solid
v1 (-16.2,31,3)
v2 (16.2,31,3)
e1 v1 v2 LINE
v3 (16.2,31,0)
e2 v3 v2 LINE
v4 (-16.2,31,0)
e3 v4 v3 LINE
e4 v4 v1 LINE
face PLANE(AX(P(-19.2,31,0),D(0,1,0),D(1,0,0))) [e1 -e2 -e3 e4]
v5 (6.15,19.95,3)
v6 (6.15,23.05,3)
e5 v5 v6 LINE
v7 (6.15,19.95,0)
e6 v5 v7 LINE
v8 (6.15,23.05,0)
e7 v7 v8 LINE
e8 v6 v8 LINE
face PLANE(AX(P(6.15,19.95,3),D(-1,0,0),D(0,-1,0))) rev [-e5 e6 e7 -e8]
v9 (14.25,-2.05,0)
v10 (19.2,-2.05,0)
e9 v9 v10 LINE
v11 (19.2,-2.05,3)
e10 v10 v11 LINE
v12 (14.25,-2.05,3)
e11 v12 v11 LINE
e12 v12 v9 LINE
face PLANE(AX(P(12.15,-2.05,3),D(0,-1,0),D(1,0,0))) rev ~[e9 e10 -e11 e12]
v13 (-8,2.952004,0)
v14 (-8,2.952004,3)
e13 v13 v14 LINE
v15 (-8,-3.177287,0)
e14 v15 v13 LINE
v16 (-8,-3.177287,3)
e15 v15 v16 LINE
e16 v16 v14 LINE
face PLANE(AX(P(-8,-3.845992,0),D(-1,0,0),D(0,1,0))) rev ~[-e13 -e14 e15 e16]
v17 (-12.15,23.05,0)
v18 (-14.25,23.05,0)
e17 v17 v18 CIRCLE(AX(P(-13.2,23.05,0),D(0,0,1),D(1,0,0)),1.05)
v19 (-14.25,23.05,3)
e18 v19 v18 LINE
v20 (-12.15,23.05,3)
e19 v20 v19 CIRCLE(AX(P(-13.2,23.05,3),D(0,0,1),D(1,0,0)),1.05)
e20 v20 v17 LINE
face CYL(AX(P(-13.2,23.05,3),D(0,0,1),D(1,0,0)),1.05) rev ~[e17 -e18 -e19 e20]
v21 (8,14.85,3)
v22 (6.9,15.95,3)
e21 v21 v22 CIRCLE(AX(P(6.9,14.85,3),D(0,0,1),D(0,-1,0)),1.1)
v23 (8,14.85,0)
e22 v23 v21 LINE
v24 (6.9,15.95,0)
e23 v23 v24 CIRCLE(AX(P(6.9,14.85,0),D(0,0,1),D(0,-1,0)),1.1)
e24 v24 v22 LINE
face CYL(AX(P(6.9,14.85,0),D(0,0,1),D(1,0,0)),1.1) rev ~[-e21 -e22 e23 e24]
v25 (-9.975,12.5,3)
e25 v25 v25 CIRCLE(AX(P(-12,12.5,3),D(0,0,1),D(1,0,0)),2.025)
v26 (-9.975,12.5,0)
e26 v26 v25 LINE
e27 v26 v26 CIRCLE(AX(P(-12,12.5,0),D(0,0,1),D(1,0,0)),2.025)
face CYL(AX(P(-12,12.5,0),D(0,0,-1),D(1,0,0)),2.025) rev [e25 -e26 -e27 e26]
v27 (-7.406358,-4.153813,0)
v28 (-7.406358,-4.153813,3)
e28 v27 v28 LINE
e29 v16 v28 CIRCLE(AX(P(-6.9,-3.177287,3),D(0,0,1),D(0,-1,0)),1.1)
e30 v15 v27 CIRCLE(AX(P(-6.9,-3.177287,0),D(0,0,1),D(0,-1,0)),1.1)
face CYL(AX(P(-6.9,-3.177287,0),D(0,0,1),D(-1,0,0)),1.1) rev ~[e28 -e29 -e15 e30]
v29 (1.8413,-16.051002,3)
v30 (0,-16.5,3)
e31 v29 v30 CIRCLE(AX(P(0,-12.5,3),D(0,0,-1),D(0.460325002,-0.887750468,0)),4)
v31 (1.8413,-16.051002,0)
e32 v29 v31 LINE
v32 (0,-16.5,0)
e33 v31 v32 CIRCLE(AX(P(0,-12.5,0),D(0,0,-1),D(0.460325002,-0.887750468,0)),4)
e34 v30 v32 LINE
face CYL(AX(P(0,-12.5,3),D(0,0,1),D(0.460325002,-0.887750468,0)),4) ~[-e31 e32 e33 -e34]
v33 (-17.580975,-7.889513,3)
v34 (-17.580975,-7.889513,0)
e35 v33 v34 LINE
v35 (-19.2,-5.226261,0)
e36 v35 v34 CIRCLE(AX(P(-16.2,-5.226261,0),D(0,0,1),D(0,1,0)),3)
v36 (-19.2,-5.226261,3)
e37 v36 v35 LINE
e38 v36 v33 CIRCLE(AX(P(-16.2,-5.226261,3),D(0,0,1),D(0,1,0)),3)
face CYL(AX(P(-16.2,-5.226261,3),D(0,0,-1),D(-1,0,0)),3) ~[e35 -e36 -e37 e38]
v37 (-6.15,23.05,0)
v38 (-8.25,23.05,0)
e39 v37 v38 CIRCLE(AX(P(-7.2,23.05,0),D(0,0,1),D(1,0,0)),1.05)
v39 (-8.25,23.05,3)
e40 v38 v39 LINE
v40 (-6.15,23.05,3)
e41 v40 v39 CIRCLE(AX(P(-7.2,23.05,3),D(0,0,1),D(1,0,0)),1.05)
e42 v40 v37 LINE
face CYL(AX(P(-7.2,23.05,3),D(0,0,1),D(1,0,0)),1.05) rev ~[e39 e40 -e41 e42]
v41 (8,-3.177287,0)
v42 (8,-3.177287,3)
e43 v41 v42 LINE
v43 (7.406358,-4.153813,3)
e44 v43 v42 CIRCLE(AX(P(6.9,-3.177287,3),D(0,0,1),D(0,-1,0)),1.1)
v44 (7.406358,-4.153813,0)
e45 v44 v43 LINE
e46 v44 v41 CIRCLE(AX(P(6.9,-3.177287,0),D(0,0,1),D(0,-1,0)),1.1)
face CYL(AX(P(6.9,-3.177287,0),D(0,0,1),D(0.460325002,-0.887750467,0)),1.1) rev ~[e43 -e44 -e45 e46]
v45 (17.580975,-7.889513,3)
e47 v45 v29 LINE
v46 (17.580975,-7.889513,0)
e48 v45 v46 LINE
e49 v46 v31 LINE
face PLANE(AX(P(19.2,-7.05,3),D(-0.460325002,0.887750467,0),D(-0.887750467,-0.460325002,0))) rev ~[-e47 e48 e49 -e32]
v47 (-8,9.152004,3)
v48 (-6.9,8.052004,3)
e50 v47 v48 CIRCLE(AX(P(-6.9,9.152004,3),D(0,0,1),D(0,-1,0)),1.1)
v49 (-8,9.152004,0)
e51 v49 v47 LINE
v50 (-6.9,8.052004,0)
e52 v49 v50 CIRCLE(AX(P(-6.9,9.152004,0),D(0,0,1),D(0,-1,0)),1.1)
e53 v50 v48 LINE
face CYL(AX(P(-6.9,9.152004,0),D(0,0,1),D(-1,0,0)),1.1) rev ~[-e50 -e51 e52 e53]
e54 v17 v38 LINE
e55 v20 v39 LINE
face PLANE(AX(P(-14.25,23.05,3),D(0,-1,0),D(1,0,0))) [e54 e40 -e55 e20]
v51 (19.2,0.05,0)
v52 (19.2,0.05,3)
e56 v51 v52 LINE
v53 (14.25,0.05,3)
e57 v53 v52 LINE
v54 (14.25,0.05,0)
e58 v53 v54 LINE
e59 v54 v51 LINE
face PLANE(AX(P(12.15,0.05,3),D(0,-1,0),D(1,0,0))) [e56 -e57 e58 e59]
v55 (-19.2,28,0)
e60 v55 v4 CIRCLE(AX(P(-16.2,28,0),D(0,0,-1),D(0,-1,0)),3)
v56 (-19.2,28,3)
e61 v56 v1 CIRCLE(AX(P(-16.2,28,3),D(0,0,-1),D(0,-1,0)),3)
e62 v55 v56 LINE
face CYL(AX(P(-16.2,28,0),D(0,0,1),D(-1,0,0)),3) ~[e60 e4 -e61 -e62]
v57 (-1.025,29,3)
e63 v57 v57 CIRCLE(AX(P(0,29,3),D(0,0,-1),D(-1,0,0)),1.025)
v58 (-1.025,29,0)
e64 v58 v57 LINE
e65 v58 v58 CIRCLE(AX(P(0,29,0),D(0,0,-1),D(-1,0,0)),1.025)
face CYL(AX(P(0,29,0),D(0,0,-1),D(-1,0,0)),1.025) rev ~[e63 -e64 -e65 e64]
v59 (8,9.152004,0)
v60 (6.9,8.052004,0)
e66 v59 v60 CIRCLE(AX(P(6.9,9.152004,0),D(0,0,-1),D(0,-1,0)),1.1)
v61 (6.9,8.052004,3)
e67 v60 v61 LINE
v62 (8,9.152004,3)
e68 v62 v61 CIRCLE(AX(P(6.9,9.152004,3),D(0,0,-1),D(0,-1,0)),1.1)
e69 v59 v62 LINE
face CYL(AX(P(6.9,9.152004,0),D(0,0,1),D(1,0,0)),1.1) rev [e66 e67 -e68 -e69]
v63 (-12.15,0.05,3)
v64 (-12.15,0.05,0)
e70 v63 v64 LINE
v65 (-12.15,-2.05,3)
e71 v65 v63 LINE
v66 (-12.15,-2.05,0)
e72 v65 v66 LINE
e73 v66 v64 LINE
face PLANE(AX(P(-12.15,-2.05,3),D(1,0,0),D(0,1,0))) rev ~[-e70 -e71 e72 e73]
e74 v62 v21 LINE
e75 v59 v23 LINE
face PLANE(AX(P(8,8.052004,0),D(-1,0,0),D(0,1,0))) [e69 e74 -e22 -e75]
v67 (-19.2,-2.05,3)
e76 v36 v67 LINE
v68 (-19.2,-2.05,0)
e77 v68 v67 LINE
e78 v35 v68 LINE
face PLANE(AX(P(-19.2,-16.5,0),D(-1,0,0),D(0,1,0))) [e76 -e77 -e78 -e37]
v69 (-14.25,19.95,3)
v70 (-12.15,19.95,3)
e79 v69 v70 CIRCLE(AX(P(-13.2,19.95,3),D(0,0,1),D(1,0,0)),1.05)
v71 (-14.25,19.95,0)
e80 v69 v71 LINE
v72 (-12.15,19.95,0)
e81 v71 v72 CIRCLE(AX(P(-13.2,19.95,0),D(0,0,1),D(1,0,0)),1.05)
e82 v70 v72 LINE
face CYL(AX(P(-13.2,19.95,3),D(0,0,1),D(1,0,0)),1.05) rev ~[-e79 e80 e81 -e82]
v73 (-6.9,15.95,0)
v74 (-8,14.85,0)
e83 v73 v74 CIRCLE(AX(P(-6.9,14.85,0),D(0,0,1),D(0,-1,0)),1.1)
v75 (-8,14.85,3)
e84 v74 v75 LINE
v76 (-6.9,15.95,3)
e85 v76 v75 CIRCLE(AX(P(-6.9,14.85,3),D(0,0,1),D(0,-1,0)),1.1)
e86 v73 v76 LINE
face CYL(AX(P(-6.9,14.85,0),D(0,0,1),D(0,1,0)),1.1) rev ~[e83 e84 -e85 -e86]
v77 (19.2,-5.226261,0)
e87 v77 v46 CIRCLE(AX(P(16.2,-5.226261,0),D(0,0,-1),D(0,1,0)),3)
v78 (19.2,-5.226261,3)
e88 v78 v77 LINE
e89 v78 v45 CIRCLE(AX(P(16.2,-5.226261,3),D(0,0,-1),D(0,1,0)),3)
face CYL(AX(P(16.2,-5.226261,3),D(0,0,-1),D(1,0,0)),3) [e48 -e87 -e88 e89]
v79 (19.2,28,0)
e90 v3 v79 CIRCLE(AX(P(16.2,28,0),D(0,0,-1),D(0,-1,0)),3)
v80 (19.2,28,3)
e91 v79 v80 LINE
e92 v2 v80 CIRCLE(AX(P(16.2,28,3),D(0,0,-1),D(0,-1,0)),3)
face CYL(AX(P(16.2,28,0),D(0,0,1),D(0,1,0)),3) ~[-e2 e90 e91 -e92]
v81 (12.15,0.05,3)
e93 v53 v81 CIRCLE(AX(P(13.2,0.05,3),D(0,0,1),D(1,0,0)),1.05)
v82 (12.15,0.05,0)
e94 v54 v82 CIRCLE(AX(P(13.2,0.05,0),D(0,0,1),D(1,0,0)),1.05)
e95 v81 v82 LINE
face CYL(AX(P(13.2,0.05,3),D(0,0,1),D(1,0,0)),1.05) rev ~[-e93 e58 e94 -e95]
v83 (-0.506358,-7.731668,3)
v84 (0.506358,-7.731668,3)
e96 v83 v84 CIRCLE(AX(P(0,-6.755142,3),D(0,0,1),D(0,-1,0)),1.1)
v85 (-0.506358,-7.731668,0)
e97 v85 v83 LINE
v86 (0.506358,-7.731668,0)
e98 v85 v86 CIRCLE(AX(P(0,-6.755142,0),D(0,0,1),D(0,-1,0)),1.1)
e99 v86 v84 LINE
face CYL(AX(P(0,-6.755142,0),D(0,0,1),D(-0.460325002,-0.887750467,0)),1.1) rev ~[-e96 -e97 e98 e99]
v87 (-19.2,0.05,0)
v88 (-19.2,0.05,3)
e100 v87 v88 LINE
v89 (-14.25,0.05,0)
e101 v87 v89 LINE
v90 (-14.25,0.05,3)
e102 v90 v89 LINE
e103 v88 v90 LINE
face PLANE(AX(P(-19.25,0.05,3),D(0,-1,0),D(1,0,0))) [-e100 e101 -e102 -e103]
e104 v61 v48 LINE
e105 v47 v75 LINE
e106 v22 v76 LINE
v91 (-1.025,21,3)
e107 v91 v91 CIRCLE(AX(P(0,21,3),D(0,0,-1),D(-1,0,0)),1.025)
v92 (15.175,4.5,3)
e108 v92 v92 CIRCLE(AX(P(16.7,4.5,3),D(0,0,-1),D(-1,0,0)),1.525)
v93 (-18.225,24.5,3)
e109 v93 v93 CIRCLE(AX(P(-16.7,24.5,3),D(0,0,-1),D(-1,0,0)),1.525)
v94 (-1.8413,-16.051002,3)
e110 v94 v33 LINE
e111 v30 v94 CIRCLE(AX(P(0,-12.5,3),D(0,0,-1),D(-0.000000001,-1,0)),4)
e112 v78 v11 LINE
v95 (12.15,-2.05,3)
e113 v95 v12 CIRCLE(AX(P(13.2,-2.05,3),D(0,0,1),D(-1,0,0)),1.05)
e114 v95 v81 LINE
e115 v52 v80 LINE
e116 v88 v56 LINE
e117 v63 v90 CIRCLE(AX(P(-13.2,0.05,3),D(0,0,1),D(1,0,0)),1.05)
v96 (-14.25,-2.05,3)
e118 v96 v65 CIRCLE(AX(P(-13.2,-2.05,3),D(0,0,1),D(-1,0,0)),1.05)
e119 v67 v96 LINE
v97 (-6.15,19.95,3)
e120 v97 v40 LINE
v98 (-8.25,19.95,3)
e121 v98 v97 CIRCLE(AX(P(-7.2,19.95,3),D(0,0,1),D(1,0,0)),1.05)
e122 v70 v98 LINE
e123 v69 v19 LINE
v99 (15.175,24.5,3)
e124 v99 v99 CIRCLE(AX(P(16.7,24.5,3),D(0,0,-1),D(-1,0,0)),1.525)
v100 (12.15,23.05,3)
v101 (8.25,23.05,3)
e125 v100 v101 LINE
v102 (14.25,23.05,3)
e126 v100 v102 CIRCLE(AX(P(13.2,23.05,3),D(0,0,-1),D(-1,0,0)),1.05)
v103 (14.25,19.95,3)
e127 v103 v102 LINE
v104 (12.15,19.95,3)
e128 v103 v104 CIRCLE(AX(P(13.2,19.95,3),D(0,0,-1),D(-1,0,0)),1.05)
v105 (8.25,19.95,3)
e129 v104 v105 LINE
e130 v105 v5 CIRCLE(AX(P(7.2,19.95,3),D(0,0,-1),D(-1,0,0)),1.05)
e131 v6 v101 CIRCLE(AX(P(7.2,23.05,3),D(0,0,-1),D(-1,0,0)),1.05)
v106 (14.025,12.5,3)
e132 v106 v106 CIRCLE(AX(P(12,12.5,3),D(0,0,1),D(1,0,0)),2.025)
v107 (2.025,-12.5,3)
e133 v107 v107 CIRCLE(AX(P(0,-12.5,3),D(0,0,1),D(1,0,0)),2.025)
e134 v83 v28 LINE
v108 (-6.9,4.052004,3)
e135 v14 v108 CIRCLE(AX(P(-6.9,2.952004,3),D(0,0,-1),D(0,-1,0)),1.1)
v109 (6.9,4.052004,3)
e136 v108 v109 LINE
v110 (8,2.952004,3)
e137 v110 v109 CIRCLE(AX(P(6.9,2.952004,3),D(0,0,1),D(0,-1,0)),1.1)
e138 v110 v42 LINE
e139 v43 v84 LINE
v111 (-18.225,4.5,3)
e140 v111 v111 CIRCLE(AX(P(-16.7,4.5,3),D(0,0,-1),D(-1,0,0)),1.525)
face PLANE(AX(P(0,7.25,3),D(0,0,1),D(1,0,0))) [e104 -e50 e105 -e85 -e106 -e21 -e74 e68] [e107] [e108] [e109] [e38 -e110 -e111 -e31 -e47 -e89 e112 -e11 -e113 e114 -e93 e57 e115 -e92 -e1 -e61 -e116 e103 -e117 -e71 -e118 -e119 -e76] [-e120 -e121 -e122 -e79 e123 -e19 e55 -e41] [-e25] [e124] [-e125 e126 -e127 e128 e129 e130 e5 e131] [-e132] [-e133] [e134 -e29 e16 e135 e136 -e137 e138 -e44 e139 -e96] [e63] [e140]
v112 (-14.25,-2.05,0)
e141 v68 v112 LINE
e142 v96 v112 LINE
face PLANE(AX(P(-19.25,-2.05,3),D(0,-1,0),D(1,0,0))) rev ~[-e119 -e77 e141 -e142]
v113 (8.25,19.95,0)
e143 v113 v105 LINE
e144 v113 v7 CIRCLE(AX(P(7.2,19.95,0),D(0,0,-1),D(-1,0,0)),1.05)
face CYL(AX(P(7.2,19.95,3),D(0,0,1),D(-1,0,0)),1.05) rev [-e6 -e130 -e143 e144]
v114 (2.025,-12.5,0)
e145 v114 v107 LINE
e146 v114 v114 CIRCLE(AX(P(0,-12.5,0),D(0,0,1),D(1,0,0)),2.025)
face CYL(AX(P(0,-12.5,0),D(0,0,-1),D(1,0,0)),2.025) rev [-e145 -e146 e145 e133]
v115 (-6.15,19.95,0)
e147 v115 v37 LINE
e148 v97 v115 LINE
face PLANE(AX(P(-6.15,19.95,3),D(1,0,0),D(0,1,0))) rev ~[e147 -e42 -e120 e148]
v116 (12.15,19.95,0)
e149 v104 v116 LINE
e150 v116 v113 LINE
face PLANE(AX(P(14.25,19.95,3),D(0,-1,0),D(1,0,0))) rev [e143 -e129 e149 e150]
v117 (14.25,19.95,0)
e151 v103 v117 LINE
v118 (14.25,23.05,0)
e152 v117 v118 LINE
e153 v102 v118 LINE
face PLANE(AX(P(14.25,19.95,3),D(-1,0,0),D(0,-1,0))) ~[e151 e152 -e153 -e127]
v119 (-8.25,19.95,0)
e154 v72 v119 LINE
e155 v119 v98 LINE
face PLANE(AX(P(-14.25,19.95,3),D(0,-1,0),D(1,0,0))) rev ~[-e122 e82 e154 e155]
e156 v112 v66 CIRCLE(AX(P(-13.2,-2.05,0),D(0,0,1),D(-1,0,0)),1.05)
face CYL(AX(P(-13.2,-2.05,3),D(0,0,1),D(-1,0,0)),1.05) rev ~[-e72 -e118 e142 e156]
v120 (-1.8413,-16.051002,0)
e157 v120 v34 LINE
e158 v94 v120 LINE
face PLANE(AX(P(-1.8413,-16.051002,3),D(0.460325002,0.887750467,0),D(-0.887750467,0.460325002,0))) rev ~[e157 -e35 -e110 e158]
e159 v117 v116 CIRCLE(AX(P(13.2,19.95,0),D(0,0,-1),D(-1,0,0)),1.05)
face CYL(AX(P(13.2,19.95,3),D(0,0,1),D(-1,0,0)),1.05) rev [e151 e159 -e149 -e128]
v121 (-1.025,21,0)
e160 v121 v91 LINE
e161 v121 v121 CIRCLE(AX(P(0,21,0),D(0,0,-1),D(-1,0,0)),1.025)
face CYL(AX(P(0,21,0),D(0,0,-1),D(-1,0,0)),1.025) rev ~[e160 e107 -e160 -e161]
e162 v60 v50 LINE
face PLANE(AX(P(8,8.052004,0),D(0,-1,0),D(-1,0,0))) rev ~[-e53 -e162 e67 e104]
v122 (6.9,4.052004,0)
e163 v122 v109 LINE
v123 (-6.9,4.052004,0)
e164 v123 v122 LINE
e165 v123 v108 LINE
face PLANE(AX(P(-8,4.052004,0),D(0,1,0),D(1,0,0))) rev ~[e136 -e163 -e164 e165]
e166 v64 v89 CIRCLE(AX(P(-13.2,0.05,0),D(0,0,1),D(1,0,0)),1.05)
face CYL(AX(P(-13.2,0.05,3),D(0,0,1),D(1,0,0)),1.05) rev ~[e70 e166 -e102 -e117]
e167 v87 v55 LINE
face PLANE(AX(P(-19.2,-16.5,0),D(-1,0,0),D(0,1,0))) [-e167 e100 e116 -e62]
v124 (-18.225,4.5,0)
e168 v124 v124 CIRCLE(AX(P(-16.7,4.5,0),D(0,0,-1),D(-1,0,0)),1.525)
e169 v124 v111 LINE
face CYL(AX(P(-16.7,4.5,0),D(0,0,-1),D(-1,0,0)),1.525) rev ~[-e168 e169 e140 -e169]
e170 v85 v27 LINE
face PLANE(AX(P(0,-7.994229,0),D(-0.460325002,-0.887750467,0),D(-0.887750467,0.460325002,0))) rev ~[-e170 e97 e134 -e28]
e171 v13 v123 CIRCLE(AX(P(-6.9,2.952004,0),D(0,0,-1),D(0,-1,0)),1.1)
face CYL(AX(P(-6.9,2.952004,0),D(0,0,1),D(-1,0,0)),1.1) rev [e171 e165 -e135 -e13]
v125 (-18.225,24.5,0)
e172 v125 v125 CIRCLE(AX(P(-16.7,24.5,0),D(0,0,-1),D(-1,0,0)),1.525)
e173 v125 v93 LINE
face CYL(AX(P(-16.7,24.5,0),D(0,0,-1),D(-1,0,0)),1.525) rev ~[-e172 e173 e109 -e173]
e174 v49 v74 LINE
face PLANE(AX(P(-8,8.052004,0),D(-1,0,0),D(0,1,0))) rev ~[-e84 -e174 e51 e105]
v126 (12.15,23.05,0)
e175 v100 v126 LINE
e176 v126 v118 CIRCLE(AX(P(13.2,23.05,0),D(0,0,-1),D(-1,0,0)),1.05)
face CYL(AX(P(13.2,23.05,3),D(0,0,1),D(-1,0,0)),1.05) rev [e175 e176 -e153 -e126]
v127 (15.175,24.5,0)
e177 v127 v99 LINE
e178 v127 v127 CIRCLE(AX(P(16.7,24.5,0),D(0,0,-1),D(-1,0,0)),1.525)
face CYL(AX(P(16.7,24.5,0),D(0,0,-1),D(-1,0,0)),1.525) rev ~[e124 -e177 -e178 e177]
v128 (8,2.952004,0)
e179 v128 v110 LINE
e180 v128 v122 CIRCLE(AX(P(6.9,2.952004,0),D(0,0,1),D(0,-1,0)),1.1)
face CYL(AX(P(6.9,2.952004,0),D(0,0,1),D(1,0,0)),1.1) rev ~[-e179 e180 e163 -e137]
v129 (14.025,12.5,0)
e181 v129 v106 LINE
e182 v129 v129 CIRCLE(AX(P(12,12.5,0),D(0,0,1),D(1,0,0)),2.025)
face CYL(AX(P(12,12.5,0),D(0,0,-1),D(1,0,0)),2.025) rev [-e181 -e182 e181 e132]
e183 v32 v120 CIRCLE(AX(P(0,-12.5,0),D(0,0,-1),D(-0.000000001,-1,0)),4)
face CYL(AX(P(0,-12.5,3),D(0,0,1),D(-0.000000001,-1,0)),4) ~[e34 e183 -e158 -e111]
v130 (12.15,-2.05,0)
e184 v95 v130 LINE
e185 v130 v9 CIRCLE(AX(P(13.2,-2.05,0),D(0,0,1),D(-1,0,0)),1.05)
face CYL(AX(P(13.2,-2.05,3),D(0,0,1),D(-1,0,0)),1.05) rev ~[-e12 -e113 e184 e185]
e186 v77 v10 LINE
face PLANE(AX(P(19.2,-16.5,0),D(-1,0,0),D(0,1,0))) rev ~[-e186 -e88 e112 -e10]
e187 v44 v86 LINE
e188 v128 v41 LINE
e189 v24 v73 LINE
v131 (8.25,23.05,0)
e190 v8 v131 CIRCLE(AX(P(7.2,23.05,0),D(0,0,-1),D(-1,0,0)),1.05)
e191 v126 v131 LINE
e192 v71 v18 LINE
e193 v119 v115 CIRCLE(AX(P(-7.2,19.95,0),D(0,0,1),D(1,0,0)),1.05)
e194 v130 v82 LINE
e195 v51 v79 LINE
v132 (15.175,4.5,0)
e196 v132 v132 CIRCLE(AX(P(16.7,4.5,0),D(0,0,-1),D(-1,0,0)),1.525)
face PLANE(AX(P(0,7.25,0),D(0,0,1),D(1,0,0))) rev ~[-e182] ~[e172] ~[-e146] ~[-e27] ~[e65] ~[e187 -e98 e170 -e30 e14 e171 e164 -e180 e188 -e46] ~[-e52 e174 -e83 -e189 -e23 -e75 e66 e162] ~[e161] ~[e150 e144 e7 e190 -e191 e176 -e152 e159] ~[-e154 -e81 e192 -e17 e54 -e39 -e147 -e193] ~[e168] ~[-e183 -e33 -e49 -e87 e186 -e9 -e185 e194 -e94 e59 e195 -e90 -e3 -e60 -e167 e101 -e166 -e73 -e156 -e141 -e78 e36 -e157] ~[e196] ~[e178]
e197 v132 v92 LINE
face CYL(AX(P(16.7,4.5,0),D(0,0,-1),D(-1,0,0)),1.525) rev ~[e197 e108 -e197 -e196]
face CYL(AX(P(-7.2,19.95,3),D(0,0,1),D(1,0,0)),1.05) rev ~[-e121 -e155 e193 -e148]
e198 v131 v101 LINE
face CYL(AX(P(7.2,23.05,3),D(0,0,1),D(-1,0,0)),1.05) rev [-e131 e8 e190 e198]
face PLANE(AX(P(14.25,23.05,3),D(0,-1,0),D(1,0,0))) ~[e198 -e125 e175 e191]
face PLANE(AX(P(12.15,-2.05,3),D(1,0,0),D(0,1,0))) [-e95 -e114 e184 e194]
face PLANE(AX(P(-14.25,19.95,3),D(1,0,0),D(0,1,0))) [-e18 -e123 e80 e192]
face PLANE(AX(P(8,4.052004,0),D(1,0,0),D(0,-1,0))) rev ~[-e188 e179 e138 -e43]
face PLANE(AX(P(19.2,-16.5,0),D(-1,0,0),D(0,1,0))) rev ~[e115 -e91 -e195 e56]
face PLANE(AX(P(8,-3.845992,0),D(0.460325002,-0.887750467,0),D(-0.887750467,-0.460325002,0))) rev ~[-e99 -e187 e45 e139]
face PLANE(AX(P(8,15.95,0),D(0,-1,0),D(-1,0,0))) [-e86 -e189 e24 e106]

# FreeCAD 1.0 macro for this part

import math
import FreeCAD as App
import Part
import Sketcher
from FreeCAD import Vector
Q = App.Units.Quantity


def edges_at(feature, points):
    """Names of the edges that pass closest to the given points."""
    edges = feature.Shape.Edges
    near = lambda p: min(range(len(edges)), key=lambda i: edges[i].distToShape(Part.Vertex(*p))[0])
    return sorted({f"Edge{near(p) + 1}" for p in points})

doc = App.newDocument("Part")
body = doc.addObject("PartDesign::Body", "Body")

# Sketch on XY plane
sketch1 = body.newObject("Sketcher::SketchObject", "Sketch")
sketch1.AttachmentSupport = (doc.getObject("XY_Plane"), [""])
sketch1.MapMode = "FlatFace"
sketch1.addGeometry(Part.LineSegment(Vector(-19.2, 31, 0), Vector(-19.2, -16.5, 0)), False)
sketch1.addGeometry(Part.LineSegment(Vector(-19.2, -16.5, 0), Vector(19.2, -16.5, 0)), False)
sketch1.addGeometry(Part.LineSegment(Vector(19.2, -16.5, 0), Vector(19.2, 31, 0)), False)
sketch1.addGeometry(Part.LineSegment(Vector(19.2, 31, 0), Vector(-19.2, 31, 0)), False)
sketch1.addGeometry(Part.Circle(Vector(0, -12.5, 0), Vector(0, 0, 1), 2), False)
sketch1.addGeometry(Part.Circle(Vector(-12, 12.5, 0), Vector(0, 0, 1), 2), False)
sketch1.addGeometry(Part.Circle(Vector(12, 12.5, 0), Vector(0, 0, 1), 2), False)
sketch1.addConstraint(Sketcher.Constraint("Coincident", 0, 2, 1, 1))
sketch1.addConstraint(Sketcher.Constraint("Coincident", 1, 2, 2, 1))
sketch1.addConstraint(Sketcher.Constraint("Coincident", 2, 2, 3, 1))
sketch1.addConstraint(Sketcher.Constraint("Coincident", 3, 2, 0, 1))
sketch1.addConstraint(Sketcher.Constraint("Vertical", 0))
sketch1.addConstraint(Sketcher.Constraint("Horizontal", 1))
sketch1.addConstraint(Sketcher.Constraint("Vertical", 2))
sketch1.addConstraint(Sketcher.Constraint("Horizontal", 3))
sketch1.addConstraint(Sketcher.Constraint("Equal", 4, 5))
sketch1.addConstraint(Sketcher.Constraint("Equal", 5, 6))
sketch1.addConstraint(Sketcher.Constraint("Symmetric", 5, 3, 6, 3, -2))
sketch1.addConstraint(Sketcher.Constraint("PointOnObject", 4, 3, -2))
sketch1.addConstraint(Sketcher.Constraint("Diameter", 4, Q("4.05 mm")))
sketch1.addConstraint(Sketcher.Constraint("DistanceX", 1, 1, 1, 2, Q("38.4 mm")))
sketch1.addConstraint(Sketcher.Constraint("DistanceY", 0, 2, 0, 1, Q("47.5 mm")))
sketch1.addConstraint(Sketcher.Constraint("DistanceX", 5, 3, -1, 1, Q("12 mm")))
sketch1.addConstraint(Sketcher.Constraint("DistanceY", -1, 1, 2, 2, Q("31 mm")))
sketch1.addConstraint(Sketcher.Constraint("DistanceY", 4, 3, 5, 3, Q("25 mm")))
sketch1.addConstraint(Sketcher.Constraint("DistanceY", 0, 2, 4, 3, Q("4 mm")))
sketch1.addConstraint(Sketcher.Constraint("DistanceX", 0, 2, -1, 1, Q("19.2 mm")))
pad1 = body.newObject("PartDesign::Pad", "Pad")
pad1.Profile = sketch1
pad1.Length = 3

# Sketch on XY plane
sketch2 = body.newObject("Sketcher::SketchObject", "Sketch001")
sketch2.AttachmentSupport = (doc.getObject("XY_Plane"), [""])
sketch2.MapMode = "FlatFace"
sketch2.addGeometry(Part.Circle(Vector(0, 29, 0), Vector(0, 0, 1), 1), False)
sketch2.addGeometry(Part.Circle(Vector(0, 21, 0), Vector(0, 0, 1), 1), False)
sketch2.addConstraint(Sketcher.Constraint("Equal", 0, 1))
sketch2.addConstraint(Sketcher.Constraint("PointOnObject", 0, 3, -2))
sketch2.addConstraint(Sketcher.Constraint("PointOnObject", 1, 3, -2))
sketch2.addConstraint(Sketcher.Constraint("Diameter", 0, Q("2.05 mm")))
sketch2.addConstraint(Sketcher.Constraint("DistanceY", -1, 1, 0, 3, Q("29 mm")))
sketch2.addConstraint(Sketcher.Constraint("DistanceY", -1, 1, 1, 3, Q("21 mm")))
pocket1 = body.newObject("PartDesign::Pocket", "Pocket")
pocket1.Profile = sketch2
pocket1.Length = 43
pocket1.Reversed = True

# Sketch on XY plane
sketch3 = body.newObject("Sketcher::SketchObject", "Sketch002")
sketch3.AttachmentSupport = (doc.getObject("XY_Plane"), [""])
sketch3.MapMode = "FlatFace"
sketch3.AttachmentOffset = App.Placement(Vector(0, 0, 3), App.Rotation())
sketch3.addGeometry(Part.LineSegment(Vector(12.2, 0.1, 0), Vector(12.2, -2, 0)), False)
sketch3.addGeometry(Part.LineSegment(Vector(12.2, -2, 0), Vector(19.2, -2, 0)), False)
sketch3.addGeometry(Part.LineSegment(Vector(19.2, -2, 0), Vector(19.2, 0.1, 0)), False)
sketch3.addGeometry(Part.LineSegment(Vector(19.2, 0.1, 0), Vector(12.2, 0.1, 0)), False)
sketch3.addGeometry(Part.LineSegment(Vector(-19.2, 0.1, 0), Vector(-19.2, -2, 0)), False)
sketch3.addGeometry(Part.LineSegment(Vector(-19.2, -2, 0), Vector(-12.2, -2, 0)), False)
sketch3.addGeometry(Part.LineSegment(Vector(-12.2, -2, 0), Vector(-12.2, 0.1, 0)), False)
sketch3.addGeometry(Part.LineSegment(Vector(-12.2, 0.1, 0), Vector(-19.2, 0.1, 0)), False)
sketch3.addConstraint(Sketcher.Constraint("Coincident", 0, 2, 1, 1))
sketch3.addConstraint(Sketcher.Constraint("Coincident", 1, 2, 2, 1))
sketch3.addConstraint(Sketcher.Constraint("Coincident", 2, 2, 3, 1))
sketch3.addConstraint(Sketcher.Constraint("Coincident", 3, 2, 0, 1))
sketch3.addConstraint(Sketcher.Constraint("Coincident", 4, 2, 5, 1))
sketch3.addConstraint(Sketcher.Constraint("Coincident", 5, 2, 6, 1))
sketch3.addConstraint(Sketcher.Constraint("Coincident", 6, 2, 7, 1))
sketch3.addConstraint(Sketcher.Constraint("Coincident", 7, 2, 4, 1))
sketch3.addConstraint(Sketcher.Constraint("Vertical", 0))
sketch3.addConstraint(Sketcher.Constraint("Horizontal", 1))
sketch3.addConstraint(Sketcher.Constraint("Vertical", 2))
sketch3.addConstraint(Sketcher.Constraint("Horizontal", 3))
sketch3.addConstraint(Sketcher.Constraint("Vertical", 4))
sketch3.addConstraint(Sketcher.Constraint("Horizontal", 5))
sketch3.addConstraint(Sketcher.Constraint("Vertical", 6))
sketch3.addConstraint(Sketcher.Constraint("Horizontal", 7))
sketch3.addConstraint(Sketcher.Constraint("Symmetric", 1, 2, 4, 2, -2))
sketch3.addConstraint(Sketcher.Constraint("Symmetric", 3, 2, 6, 2, -2))
sketch3.addConstraint(Sketcher.Constraint("DistanceX", 1, 1, 1, 2, Q("7.1 mm")))
sketch3.addConstraint(Sketcher.Constraint("DistanceY", 0, 2, 0, 1, Q("2.1 mm")))
sketch3.addConstraint(Sketcher.Constraint("DistanceX", 4, 2, 0, 2, Q("31.4 mm")))
sketch3.addConstraint(Sketcher.Constraint("DistanceY", 0, 2, -1, 1, Q("2.05 mm")))
pocket2 = body.newObject("PartDesign::Pocket", "Pocket001")
pocket2.Profile = sketch3
pocket2.Length = 3

# Sketch on XY plane
sketch4 = body.newObject("Sketcher::SketchObject", "Sketch003")
sketch4.AttachmentSupport = (doc.getObject("XY_Plane"), [""])
sketch4.MapMode = "FlatFace"
sketch4.AttachmentOffset = App.Placement(Vector(0, 0, 3), App.Rotation())
sketch4.addGeometry(Part.ArcOfCircle(Part.Circle(Vector(-13.2, -2.1, 0), Vector(0, 0, 1), 1.1), math.radians(0), math.radians(90)), False)
sketch4.addGeometry(Part.ArcOfCircle(Part.Circle(Vector(-13.2, -2.1, 0), Vector(0, 0, 1), 1.1), math.radians(90), math.radians(180)), False)
sketch4.addGeometry(Part.ArcOfCircle(Part.Circle(Vector(-13.2, -2, 0), Vector(0, 0, 1), 1.1), math.radians(180), math.radians(360)), False)
sketch4.addGeometry(Part.ArcOfCircle(Part.Circle(Vector(-13.2, 0.1, 0), Vector(0, 0, 1), 1.1), math.radians(0), math.radians(180)), False)
sketch4.addGeometry(Part.ArcOfCircle(Part.Circle(Vector(-13.2, 0.1, 0), Vector(0, 0, 1), 1.1), math.radians(-180), math.radians(-90)), False)
sketch4.addGeometry(Part.ArcOfCircle(Part.Circle(Vector(-13.2, 0.1, 0), Vector(0, 0, 1), 1.1), math.radians(-90), math.radians(0)), False)
sketch4.addGeometry(Part.ArcOfCircle(Part.Circle(Vector(13.2, -2.1, 0), Vector(0, 0, 1), 1.1), math.radians(0), math.radians(90)), False)
sketch4.addGeometry(Part.ArcOfCircle(Part.Circle(Vector(13.2, -2.1, 0), Vector(0, 0, 1), 1.1), math.radians(90), math.radians(180)), False)
sketch4.addGeometry(Part.ArcOfCircle(Part.Circle(Vector(13.2, -2, 0), Vector(0, 0, 1), 1.1), math.radians(180), math.radians(360)), False)
sketch4.addGeometry(Part.ArcOfCircle(Part.Circle(Vector(13.2, 0.1, 0), Vector(0, 0, 1), 1.1), math.radians(0), math.radians(180)), False)
sketch4.addGeometry(Part.ArcOfCircle(Part.Circle(Vector(13.2, 0.1, 0), Vector(0, 0, 1), 1.1), math.radians(-180), math.radians(-90)), False)
sketch4.addGeometry(Part.ArcOfCircle(Part.Circle(Vector(13.2, 0.1, 0), Vector(0, 0, 1), 1.1), math.radians(-90), math.radians(0)), False)
sketch4.addConstraint(Sketcher.Constraint("Tangent", 0, 2, 1, 1))
sketch4.addConstraint(Sketcher.Constraint("Tangent", 1, 2, 2, 1))
sketch4.addConstraint(Sketcher.Constraint("Tangent", 2, 2, 0, 1))
sketch4.addConstraint(Sketcher.Constraint("Tangent", 3, 2, 4, 1))
sketch4.addConstraint(Sketcher.Constraint("Tangent", 4, 2, 5, 1))
sketch4.addConstraint(Sketcher.Constraint("Tangent", 5, 2, 3, 1))
sketch4.addConstraint(Sketcher.Constraint("Tangent", 6, 2, 7, 1))
sketch4.addConstraint(Sketcher.Constraint("Tangent", 7, 2, 8, 1))
sketch4.addConstraint(Sketcher.Constraint("Tangent", 8, 2, 6, 1))
sketch4.addConstraint(Sketcher.Constraint("Tangent", 9, 2, 10, 1))
sketch4.addConstraint(Sketcher.Constraint("Tangent", 10, 2, 11, 1))
sketch4.addConstraint(Sketcher.Constraint("Tangent", 11, 2, 9, 1))
sketch4.addConstraint(Sketcher.Constraint("Coincident", 4, 2, 0, 2))
sketch4.addConstraint(Sketcher.Constraint("Coincident", 10, 2, 6, 2))
sketch4.addConstraint(Sketcher.Constraint("Equal", 2, 3))
sketch4.addConstraint(Sketcher.Constraint("Equal", 5, 6))
sketch4.addConstraint(Sketcher.Constraint("Equal", 8, 9))
sketch4.addConstraint(Sketcher.Constraint("Symmetric", 0, 3, 6, 3, -2))
sketch4.addConstraint(Sketcher.Constraint("Symmetric", 5, 2, 9, 2, -2))
sketch4.addConstraint(Sketcher.Constraint("Horizontal", 8, 3, 1, 2))
sketch4.addConstraint(Sketcher.Constraint("Horizontal", 1, 2, 2, 2))
sketch4.addConstraint(Sketcher.Constraint("Horizontal", 11, 3, 3, 2))
sketch4.addConstraint(Sketcher.Constraint("Horizontal", 3, 2, 5, 2))
sketch4.addConstraint(Sketcher.Constraint("Horizontal", 2, 2, 7, 2))
sketch4.addConstraint(Sketcher.Constraint("Horizontal", 7, 2, 8, 2))
sketch4.addConstraint(Sketcher.Constraint("Horizontal", 9, 2, 11, 2))
sketch4.addConstraint(Sketcher.Constraint("Vertical", 2, 3, 3, 3))
sketch4.addConstraint(Sketcher.Constraint("Vertical", 5, 3, 0, 2))
sketch4.addConstraint(Sketcher.Constraint("Vertical", 11, 3, 6, 2))
sketch4.addConstraint(Sketcher.Constraint("Radius", 0, Q("1.05 mm")))
sketch4.addConstraint(Sketcher.Constraint("DistanceY", 0, 2, -1, 1, Q("1 mm")))
sketch4.addConstraint(Sketcher.Constraint("DistanceX", 0, 3, -1, 1, Q("13.2 mm")))
pocket3 = body.newObject("PartDesign::Pocket", "Pocket002")
pocket3.Profile = sketch4
pocket3.Length = 3

# Sketch on XY plane
sketch5 = body.newObject("Sketcher::SketchObject", "Sketch004")
sketch5.AttachmentSupport = (doc.getObject("XY_Plane"), [""])
sketch5.MapMode = "FlatFace"
sketch5.addGeometry(Part.Circle(Vector(-16.7, 4.5, 0), Vector(0, 0, 1), 1.5), False)
sketch5.addGeometry(Part.Circle(Vector(-16.7, 24.5, 0), Vector(0, 0, 1), 1.5), False)
sketch5.addGeometry(Part.Circle(Vector(16.7, 24.5, 0), Vector(0, 0, 1), 1.5), False)
sketch5.addGeometry(Part.Circle(Vector(16.7, 4.5, 0), Vector(0, 0, 1), 1.5), False)
sketch5.addConstraint(Sketcher.Constraint("Equal", 0, 1))
sketch5.addConstraint(Sketcher.Constraint("Equal", 1, 2))
sketch5.addConstraint(Sketcher.Constraint("Equal", 2, 3))
sketch5.addConstraint(Sketcher.Constraint("Symmetric", 1, 3, 2, 3, -2))
sketch5.addConstraint(Sketcher.Constraint("Symmetric", 0, 3, 3, 3, -2))
sketch5.addConstraint(Sketcher.Constraint("Vertical", 0, 3, 1, 3))
sketch5.addConstraint(Sketcher.Constraint("Diameter", 0, Q("3.05 mm")))
sketch5.addConstraint(Sketcher.Constraint("DistanceY", 0, 3, 1, 3, Q("20 mm")))
sketch5.addConstraint(Sketcher.Constraint("DistanceX", 0, 3, -1, 1, Q("16.7 mm")))
sketch5.addConstraint(Sketcher.Constraint("DistanceY", -1, 1, 0, 3, Q("4.5 mm")))
pocket4 = body.newObject("PartDesign::Pocket", "Pocket003")
pocket4.Profile = sketch5
pocket4.Length = 3
pocket4.Reversed = True

# Sketch on XY plane
sketch6 = body.newObject("Sketcher::SketchObject", "Sketch005")
sketch6.AttachmentSupport = (doc.getObject("XY_Plane"), [""])
sketch6.MapMode = "FlatFace"
sketch6.AttachmentOffset = App.Placement(Vector(0, 0, 3), App.Rotation())
sketch6.addGeometry(Part.LineSegment(Vector(-14.2, 23.1, 0), Vector(-14.2, 19.9, 0)), False)
sketch6.addGeometry(Part.LineSegment(Vector(-14.2, 19.9, 0), Vector(-6.2, 19.9, 0)), False)
sketch6.addGeometry(Part.LineSegment(Vector(-6.2, 19.9, 0), Vector(-6.2, 23.1, 0)), False)
sketch6.addGeometry(Part.LineSegment(Vector(-6.2, 23.1, 0), Vector(-14.2, 23.1, 0)), False)
sketch6.addConstraint(Sketcher.Constraint("Coincident", 0, 2, 1, 1))
sketch6.addConstraint(Sketcher.Constraint("Coincident", 1, 2, 2, 1))
sketch6.addConstraint(Sketcher.Constraint("Coincident", 2, 2, 3, 1))
sketch6.addConstraint(Sketcher.Constraint("Coincident", 3, 2, 0, 1))
sketch6.addConstraint(Sketcher.Constraint("Vertical", 0))
sketch6.addConstraint(Sketcher.Constraint("Horizontal", 1))
sketch6.addConstraint(Sketcher.Constraint("Vertical", 2))
sketch6.addConstraint(Sketcher.Constraint("Horizontal", 3))
sketch6.addConstraint(Sketcher.Constraint("DistanceX", 1, 1, 1, 2, Q("8.1 mm")))
sketch6.addConstraint(Sketcher.Constraint("DistanceY", 0, 2, 0, 1, Q("3.1 mm")))
sketch6.addConstraint(Sketcher.Constraint("DistanceX", 0, 2, -1, 1, Q("14.25 mm")))
sketch6.addConstraint(Sketcher.Constraint("DistanceY", -1, 1, 0, 2, Q("19.95 mm")))
pocket5 = body.newObject("PartDesign::Pocket", "Pocket004")
pocket5.Profile = sketch6
pocket5.Length = 3

# Sketch on XY plane
sketch7 = body.newObject("Sketcher::SketchObject", "Sketch006")
sketch7.AttachmentSupport = (doc.getObject("XY_Plane"), [""])
sketch7.MapMode = "FlatFace"
sketch7.AttachmentOffset = App.Placement(Vector(0, 0, 3), App.Rotation())
sketch7.addGeometry(Part.Circle(Vector(-13.2, 19.9, 0), Vector(0, 0, 1), 1.1), False)
sketch7.addGeometry(Part.Circle(Vector(-13.2, 23.1, 0), Vector(0, 0, 1), 1.1), False)
sketch7.addGeometry(Part.Circle(Vector(-7.2, 23.1, 0), Vector(0, 0, 1), 1.1), False)
sketch7.addGeometry(Part.Circle(Vector(-7.2, 19.9, 0), Vector(0, 0, 1), 1.1), False)
sketch7.addConstraint(Sketcher.Constraint("Equal", 0, 1))
sketch7.addConstraint(Sketcher.Constraint("Equal", 1, 2))
sketch7.addConstraint(Sketcher.Constraint("Equal", 2, 3))
sketch7.addConstraint(Sketcher.Constraint("Horizontal", 1, 3, 2, 3))
sketch7.addConstraint(Sketcher.Constraint("Horizontal", 0, 3, 3, 3))
sketch7.addConstraint(Sketcher.Constraint("Vertical", 0, 3, 1, 3))
sketch7.addConstraint(Sketcher.Constraint("Vertical", 2, 3, 3, 3))
sketch7.addConstraint(Sketcher.Constraint("Diameter", 0, Q("2.1 mm")))
sketch7.addConstraint(Sketcher.Constraint("DistanceX", 1, 3, 2, 3, Q("6 mm")))
sketch7.addConstraint(Sketcher.Constraint("DistanceX", 0, 3, -1, 1, Q("13.2 mm")))
sketch7.addConstraint(Sketcher.Constraint("DistanceY", 0, 3, 1, 3, Q("3.1 mm")))
sketch7.addConstraint(Sketcher.Constraint("DistanceY", -1, 1, 0, 3, Q("19.95 mm")))
pocket6 = body.newObject("PartDesign::Pocket", "Pocket005")
pocket6.Profile = sketch7
pocket6.Length = 3
doc.recompute()

mirrored = body.newObject("PartDesign::Mirrored", "Mirrored")
mirrored.Originals = [pocket5, pocket6]
mirrored.MirrorPlane = (doc.getObject("YZ_Plane"), [""])
body.Tip = mirrored

# Sketch on XY plane
sketch8 = body.newObject("Sketcher::SketchObject", "Sketch007")
sketch8.AttachmentSupport = (doc.getObject("XY_Plane"), [""])
sketch8.MapMode = "FlatFace"
sketch8.AttachmentOffset = App.Placement(Vector(0, 0, 3), App.Rotation())
sketch8.addGeometry(Part.LineSegment(Vector(-19.2, -16.5, 0), Vector(0, -16.5, 0)), False)
sketch8.addGeometry(Part.ArcOfCircle(Part.Circle(Vector(0, -12.5, 0), Vector(0, 0, 1), 4), math.radians(-117), math.radians(-90)), False)
sketch8.addGeometry(Part.LineSegment(Vector(-1.8, -16.1, 0), Vector(-19.2, -7, 0)), False)
sketch8.addGeometry(Part.LineSegment(Vector(-19.2, -7, 0), Vector(-19.2, -16.5, 0)), False)
sketch8.addGeometry(Part.LineSegment(Vector(19.2, -7, 0), Vector(1.8, -16.1, 0)), False)
sketch8.addGeometry(Part.ArcOfCircle(Part.Circle(Vector(0, -12.5, 0), Vector(0, 0, 1), 4), math.radians(-90), math.radians(-63)), False)
sketch8.addGeometry(Part.LineSegment(Vector(0, -16.5, 0), Vector(19.2, -16.5, 0)), False)
sketch8.addGeometry(Part.LineSegment(Vector(19.2, -16.5, 0), Vector(19.2, -7, 0)), False)
sketch8.addConstraint(Sketcher.Constraint("Tangent", 0, 2, 1, 2))
sketch8.addConstraint(Sketcher.Constraint("Tangent", 1, 1, 2, 1))
sketch8.addConstraint(Sketcher.Constraint("Coincident", 2, 2, 3, 1))
sketch8.addConstraint(Sketcher.Constraint("Coincident", 3, 2, 0, 1))
sketch8.addConstraint(Sketcher.Constraint("Tangent", 4, 2, 5, 2))
sketch8.addConstraint(Sketcher.Constraint("Tangent", 5, 1, 6, 1))
sketch8.addConstraint(Sketcher.Constraint("Coincident", 6, 2, 7, 1))
sketch8.addConstraint(Sketcher.Constraint("Coincident", 7, 2, 4, 1))
sketch8.addConstraint(Sketcher.Constraint("Horizontal", 0))
sketch8.addConstraint(Sketcher.Constraint("Vertical", 3))
sketch8.addConstraint(Sketcher.Constraint("Horizontal", 6))
sketch8.addConstraint(Sketcher.Constraint("Vertical", 7))
sketch8.addConstraint(Sketcher.Constraint("Coincident", 5, 3, 1, 3))
sketch8.addConstraint(Sketcher.Constraint("Equal", 1, 5))
sketch8.addConstraint(Sketcher.Constraint("Symmetric", 1, 1, 4, 2, -2))
sketch8.addConstraint(Sketcher.Constraint("Horizontal", 2, 2, 7, 2))
sketch8.addConstraint(Sketcher.Constraint("Radius", 1, Q("4 mm")))
sketch8.addConstraint(Sketcher.Constraint("DistanceX", 0, 1, 0, 2, Q("19.2 mm")))
sketch8.addConstraint(Sketcher.Constraint("DistanceY", 3, 2, 3, 1, Q("9.45 mm")))
sketch8.addConstraint(Sketcher.Constraint("DistanceY", 1, 3, -1, 1, Q("12.5 mm")))
pocket7 = body.newObject("PartDesign::Pocket", "Pocket006")
pocket7.Profile = sketch8
pocket7.Length = 3
doc.recompute()

fillet = body.newObject("PartDesign::Fillet", "Fillet")
fillet.Base = (pocket7, edges_at(pocket7, [
    (-19.2, -7.05, 1.5),
    (19.2, -7.05, 1.5),
    (-19.2, 31, 1.5),
    (19.2, 31, 1.5),
]))
fillet.Radius = 3

# Sketch on XY plane
sketch9 = body.newObject("Sketcher::SketchObject", "Sketch008")
sketch9.AttachmentSupport = (doc.getObject("XY_Plane"), [""])
sketch9.MapMode = "FlatFace"
sketch9.addGeometry(Part.LineSegment(Vector(-8, 4, 0), Vector(8, 4, 0)), False)
sketch9.addGeometry(Part.LineSegment(Vector(8, 4, 0), Vector(8, -4, 0)), False)
sketch9.addGeometry(Part.LineSegment(Vector(8, -4, 0), Vector(0, -8, 0)), False)
sketch9.addGeometry(Part.LineSegment(Vector(0, -8, 0), Vector(-8, -4, 0)), False)
sketch9.addGeometry(Part.LineSegment(Vector(-8, -4, 0), Vector(-8, 4, 0)), False)
sketch9.addGeometry(Part.LineSegment(Vector(8, 16, 0), Vector(8, 8, 0)), False)
sketch9.addGeometry(Part.LineSegment(Vector(8, 8, 0), Vector(-8, 8, 0)), False)
sketch9.addGeometry(Part.LineSegment(Vector(-8, 8, 0), Vector(-8, 16, 0)), False)
sketch9.addGeometry(Part.LineSegment(Vector(-8, 16, 0), Vector(8, 16, 0)), False)
sketch9.addConstraint(Sketcher.Constraint("Coincident", 0, 2, 1, 1))
sketch9.addConstraint(Sketcher.Constraint("Coincident", 1, 2, 2, 1))
sketch9.addConstraint(Sketcher.Constraint("Coincident", 2, 2, 3, 1))
sketch9.addConstraint(Sketcher.Constraint("Coincident", 3, 2, 4, 1))
sketch9.addConstraint(Sketcher.Constraint("Coincident", 4, 2, 0, 1))
sketch9.addConstraint(Sketcher.Constraint("Coincident", 5, 2, 6, 1))
sketch9.addConstraint(Sketcher.Constraint("Coincident", 6, 2, 7, 1))
sketch9.addConstraint(Sketcher.Constraint("Coincident", 7, 2, 8, 1))
sketch9.addConstraint(Sketcher.Constraint("Coincident", 8, 2, 5, 1))
sketch9.addConstraint(Sketcher.Constraint("Horizontal", 0))
sketch9.addConstraint(Sketcher.Constraint("Vertical", 1))
sketch9.addConstraint(Sketcher.Constraint("Vertical", 4))
sketch9.addConstraint(Sketcher.Constraint("Vertical", 5))
sketch9.addConstraint(Sketcher.Constraint("Horizontal", 6))
sketch9.addConstraint(Sketcher.Constraint("Vertical", 7))
sketch9.addConstraint(Sketcher.Constraint("Horizontal", 8))
sketch9.addConstraint(Sketcher.Constraint("Symmetric", 1, 2, 3, 2, -2))
sketch9.addConstraint(Sketcher.Constraint("PointOnObject", 2, 2, -2))
sketch9.addConstraint(Sketcher.Constraint("Vertical", 1, 2, 5, 2))
sketch9.addConstraint(Sketcher.Constraint("Vertical", 4, 2, 6, 2))
sketch9.addConstraint(Sketcher.Constraint("Equal", 4, 5))
sketch9.addConstraint(Sketcher.Constraint("DistanceX", 0, 1, 0, 2, Q("16 mm")))
sketch9.addConstraint(Sketcher.Constraint("DistanceY", 0, 2, 5, 2, Q("4 mm")))
sketch9.addConstraint(Sketcher.Constraint("DistanceY", -1, 1, 7, 2, Q("15.95 mm")))
sketch9.addConstraint(Sketcher.Constraint("Distance", 2, Q("9.011541 mm")))
sketch9.addConstraint(Sketcher.Constraint("DistanceY", 1, 2, 1, 1, Q("7.897996 mm")))
pocket8 = body.newObject("PartDesign::Pocket", "Pocket007")
pocket8.Profile = sketch9
pocket8.Length = 3
pocket8.Reversed = True
doc.recompute()

fillet2 = body.newObject("PartDesign::Fillet", "Fillet001")
fillet2.Base = (pocket8, edges_at(pocket8, [
    (8, -3.846, 1.5),
    (0, -7.994, 1.5),
    (-8, -3.846, 1.5),
    (-8, 4.052, 1.5),
    (8, 4.052, 1.5),
    (-8, 8.052, 1.5),
    (-8, 15.95, 1.5),
    (8, 15.95, 1.5),
    (8, 8.052, 1.5),
]))
fillet2.Radius = 1.1

doc.recompute()
